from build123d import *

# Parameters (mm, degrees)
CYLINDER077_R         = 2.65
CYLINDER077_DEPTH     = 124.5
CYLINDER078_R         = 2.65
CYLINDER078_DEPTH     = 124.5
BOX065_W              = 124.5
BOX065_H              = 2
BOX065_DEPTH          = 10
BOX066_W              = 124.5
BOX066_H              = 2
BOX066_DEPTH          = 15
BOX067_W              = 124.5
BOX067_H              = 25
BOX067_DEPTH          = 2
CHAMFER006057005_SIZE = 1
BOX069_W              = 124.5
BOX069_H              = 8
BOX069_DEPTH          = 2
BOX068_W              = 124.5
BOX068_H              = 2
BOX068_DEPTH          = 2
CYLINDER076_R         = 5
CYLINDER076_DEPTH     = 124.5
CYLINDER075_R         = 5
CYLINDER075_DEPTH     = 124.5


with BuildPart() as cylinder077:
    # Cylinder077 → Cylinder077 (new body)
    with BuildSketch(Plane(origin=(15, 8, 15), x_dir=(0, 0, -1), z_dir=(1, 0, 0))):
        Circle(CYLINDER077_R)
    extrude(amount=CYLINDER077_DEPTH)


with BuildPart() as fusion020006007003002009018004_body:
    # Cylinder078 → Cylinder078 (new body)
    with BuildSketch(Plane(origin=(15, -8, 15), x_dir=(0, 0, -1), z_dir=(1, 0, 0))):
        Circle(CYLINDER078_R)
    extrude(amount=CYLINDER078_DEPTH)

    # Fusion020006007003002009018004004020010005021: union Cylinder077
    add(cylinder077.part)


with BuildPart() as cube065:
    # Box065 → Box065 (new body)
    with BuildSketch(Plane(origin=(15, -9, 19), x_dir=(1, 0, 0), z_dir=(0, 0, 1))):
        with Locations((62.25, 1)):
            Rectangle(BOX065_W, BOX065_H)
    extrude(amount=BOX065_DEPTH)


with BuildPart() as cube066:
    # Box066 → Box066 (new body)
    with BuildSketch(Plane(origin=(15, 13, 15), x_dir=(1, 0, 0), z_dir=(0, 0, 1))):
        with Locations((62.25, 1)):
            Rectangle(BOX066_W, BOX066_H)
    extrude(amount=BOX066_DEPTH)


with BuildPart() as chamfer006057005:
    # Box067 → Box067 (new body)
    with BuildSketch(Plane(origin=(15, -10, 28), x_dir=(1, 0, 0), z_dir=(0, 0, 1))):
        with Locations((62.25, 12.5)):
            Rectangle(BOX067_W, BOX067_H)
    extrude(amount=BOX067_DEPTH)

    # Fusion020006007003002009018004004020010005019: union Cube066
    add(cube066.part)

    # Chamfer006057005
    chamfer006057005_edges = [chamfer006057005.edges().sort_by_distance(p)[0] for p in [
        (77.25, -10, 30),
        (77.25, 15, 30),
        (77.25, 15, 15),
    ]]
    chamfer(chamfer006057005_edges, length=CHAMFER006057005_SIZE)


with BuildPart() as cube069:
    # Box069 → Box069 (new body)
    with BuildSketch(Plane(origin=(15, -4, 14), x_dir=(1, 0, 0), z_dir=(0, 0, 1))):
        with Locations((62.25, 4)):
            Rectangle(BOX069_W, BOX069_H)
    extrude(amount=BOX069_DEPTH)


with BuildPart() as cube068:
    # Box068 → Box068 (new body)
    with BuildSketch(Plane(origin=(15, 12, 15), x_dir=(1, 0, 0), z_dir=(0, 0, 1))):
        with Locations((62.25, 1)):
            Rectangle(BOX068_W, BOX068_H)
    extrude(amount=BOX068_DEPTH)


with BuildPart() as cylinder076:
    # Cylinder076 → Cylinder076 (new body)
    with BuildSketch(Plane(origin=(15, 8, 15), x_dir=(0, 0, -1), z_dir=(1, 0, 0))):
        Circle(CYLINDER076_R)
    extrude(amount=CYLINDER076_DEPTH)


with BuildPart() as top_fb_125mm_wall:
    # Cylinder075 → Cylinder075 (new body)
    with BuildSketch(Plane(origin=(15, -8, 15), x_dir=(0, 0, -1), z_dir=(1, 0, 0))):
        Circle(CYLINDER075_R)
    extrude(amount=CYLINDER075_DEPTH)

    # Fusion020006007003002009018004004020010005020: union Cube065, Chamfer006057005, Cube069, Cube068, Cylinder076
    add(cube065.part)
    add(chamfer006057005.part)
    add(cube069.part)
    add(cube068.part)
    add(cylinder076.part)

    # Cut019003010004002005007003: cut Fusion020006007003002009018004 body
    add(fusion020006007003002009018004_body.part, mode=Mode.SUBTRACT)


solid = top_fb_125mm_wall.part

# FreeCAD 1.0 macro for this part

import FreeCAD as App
import Part
import Sketcher
from FreeCAD import Vector


def edges_at(feature, points):
    """Names of the edges that pass closest to the given points."""
    edges = feature.Shape.Edges
    near = lambda p: min(range(len(edges)), key=lambda i: edges[i].distToShape(Part.Vertex(*p))[0])
    return sorted({f"Edge{near(p) + 1}" for p in points})

doc = App.newDocument("Part")
body = doc.addObject("PartDesign::Body", "Body")

sketch1 = body.newObject("Sketcher::SketchObject", "Sketch")
sketch1.AttachmentSupport = (doc.getObject("YZ_Plane"), [""])
sketch1.MapMode = "FlatFace"
sketch1.AttachmentOffset = App.Placement(Vector(0, 0, 15), App.Rotation())
sketch1.addGeometry(Part.Circle(Vector(8, 15, 0), Vector(0, 0, 1), 2.65), False)
sketch1.addConstraint([
    Sketcher.Constraint("Diameter", 0, 5.3),
    Sketcher.Constraint("DistanceX", -1, 1, 0, 3, 8.0),
    Sketcher.Constraint("DistanceY", -1, 1, 0, 3, 15.0),
])
pad1 = body.newObject("PartDesign::Pad", "Pad")
pad1.Profile = sketch1
pad1.Length = 124.5
body2 = doc.addObject("PartDesign::Body", "Body001")
body2.AllowCompound = True

sketch2 = body2.newObject("Sketcher::SketchObject", "Sketch001")
sketch2.AttachmentSupport = (doc.getObject("YZ_Plane001"), [""])
sketch2.MapMode = "FlatFace"
sketch2.AttachmentOffset = App.Placement(Vector(0, 0, 15), App.Rotation())
sketch2.addGeometry(Part.Circle(Vector(-8, 15, 0), Vector(0, 0, 1), 2.65), False)
sketch2.addConstraint([
    Sketcher.Constraint("Diameter", 0, 5.3),
    Sketcher.Constraint("DistanceX", 0, 3, -1, 1, 8.0),
    Sketcher.Constraint("DistanceY", -1, 1, 0, 3, 15.0),
])
pad2 = body2.newObject("PartDesign::Pad", "Pad001")
pad2.Profile = sketch2
pad2.Length = 124.5
doc.recompute()

boolean = body2.newObject("PartDesign::Boolean", "Boolean")
boolean.Type = "Fuse"
boolean.addObjects([body])
body3 = doc.addObject("PartDesign::Body", "Body002")

sketch3 = body3.newObject("Sketcher::SketchObject", "Sketch002")
sketch3.AttachmentSupport = (doc.getObject("XY_Plane002"), [""])
sketch3.MapMode = "FlatFace"
sketch3.AttachmentOffset = App.Placement(Vector(0, 0, 19), App.Rotation())
sketch3.addGeometry([
    Part.LineSegment(Vector(15, -7, 0), Vector(15, -9, 0)),
    Part.LineSegment(Vector(15, -9, 0), Vector(139.5, -9, 0)),
    Part.LineSegment(Vector(139.5, -9, 0), Vector(139.5, -7, 0)),
    Part.LineSegment(Vector(139.5, -7, 0), Vector(15, -7, 0)),
], False)
sketch3.addConstraint([
    Sketcher.Constraint("Coincident", 0, 2, 1, 1),
    Sketcher.Constraint("Coincident", 1, 2, 2, 1),
    Sketcher.Constraint("Coincident", 2, 2, 3, 1),
    Sketcher.Constraint("Coincident", 3, 2, 0, 1),
    Sketcher.Constraint("Vertical", 0),
    Sketcher.Constraint("Horizontal", 1),
    Sketcher.Constraint("Vertical", 2),
    Sketcher.Constraint("Horizontal", 3),
    Sketcher.Constraint("DistanceY", 0, 2, 0, 1, 2.0),
    Sketcher.Constraint("DistanceX", 1, 1, 1, 2, 124.5),
    Sketcher.Constraint("DistanceX", -1, 1, 0, 2, 15.0),
    Sketcher.Constraint("DistanceY", 0, 2, -1, 1, 9.0),
])
pad3 = body3.newObject("PartDesign::Pad", "Pad002")
pad3.Profile = sketch3
pad3.Length = 10
body4 = doc.addObject("PartDesign::Body", "Body003")

sketch4 = body4.newObject("Sketcher::SketchObject", "Sketch003")
sketch4.AttachmentSupport = (doc.getObject("XY_Plane003"), [""])
sketch4.MapMode = "FlatFace"
sketch4.AttachmentOffset = App.Placement(Vector(0, 0, 15), App.Rotation())
sketch4.addGeometry([
    Part.LineSegment(Vector(15, 15, 0), Vector(15, 13, 0)),
    Part.LineSegment(Vector(15, 13, 0), Vector(139.5, 13, 0)),
    Part.LineSegment(Vector(139.5, 13, 0), Vector(139.5, 15, 0)),
    Part.LineSegment(Vector(139.5, 15, 0), Vector(15, 15, 0)),
], False)
sketch4.addConstraint([
    Sketcher.Constraint("Coincident", 0, 2, 1, 1),
    Sketcher.Constraint("Coincident", 1, 2, 2, 1),
    Sketcher.Constraint("Coincident", 2, 2, 3, 1),
    Sketcher.Constraint("Coincident", 3, 2, 0, 1),
    Sketcher.Constraint("Vertical", 0),
    Sketcher.Constraint("Horizontal", 1),
    Sketcher.Constraint("Vertical", 2),
    Sketcher.Constraint("Horizontal", 3),
    Sketcher.Constraint("DistanceY", 0, 2, 0, 1, 2.0),
    Sketcher.Constraint("DistanceX", 1, 1, 1, 2, 124.5),
    Sketcher.Constraint("DistanceX", -1, 1, 0, 2, 15.0),
    Sketcher.Constraint("DistanceY", -1, 1, 0, 2, 13.0),
])
pad4 = body4.newObject("PartDesign::Pad", "Pad003")
pad4.Profile = sketch4
pad4.Length = 15
body5 = doc.addObject("PartDesign::Body", "Body004")

sketch5 = body5.newObject("Sketcher::SketchObject", "Sketch004")
sketch5.AttachmentSupport = (doc.getObject("XY_Plane004"), [""])
sketch5.MapMode = "FlatFace"
sketch5.AttachmentOffset = App.Placement(Vector(0, 0, 28), App.Rotation())
sketch5.addGeometry([
    Part.LineSegment(Vector(15, 15, 0), Vector(15, -10, 0)),
    Part.LineSegment(Vector(15, -10, 0), Vector(139.5, -10, 0)),
    Part.LineSegment(Vector(139.5, -10, 0), Vector(139.5, 15, 0)),
    Part.LineSegment(Vector(139.5, 15, 0), Vector(15, 15, 0)),
], False)
sketch5.addConstraint([
    Sketcher.Constraint("Coincident", 0, 2, 1, 1),
    Sketcher.Constraint("Coincident", 1, 2, 2, 1),
    Sketcher.Constraint("Coincident", 2, 2, 3, 1),
    Sketcher.Constraint("Coincident", 3, 2, 0, 1),
    Sketcher.Constraint("Vertical", 0),
    Sketcher.Constraint("Horizontal", 1),
    Sketcher.Constraint("Vertical", 2),
    Sketcher.Constraint("Horizontal", 3),
    Sketcher.Constraint("DistanceY", 0, 2, 0, 1, 25.0),
    Sketcher.Constraint("DistanceX", 1, 1, 1, 2, 124.5),
    Sketcher.Constraint("DistanceX", -1, 1, 0, 2, 15.0),
    Sketcher.Constraint("DistanceY", 0, 2, -1, 1, 10.0),
])
pad5 = body5.newObject("PartDesign::Pad", "Pad004")
pad5.Profile = sketch5
pad5.Length = 2
doc.recompute()

boolean2 = body5.newObject("PartDesign::Boolean", "Boolean001")
boolean2.Type = "Fuse"
boolean2.addObjects([body4])
doc.recompute()

chamfer = body5.newObject("PartDesign::Chamfer", "Chamfer")
chamfer.Base = (boolean2, edges_at(boolean2, [(77.25, -10, 30), (77.25, 15, 30), (77.25, 15, 15)]))
chamfer.Size = 1
body6 = doc.addObject("PartDesign::Body", "Body005")

sketch6 = body6.newObject("Sketcher::SketchObject", "Sketch005")
sketch6.AttachmentSupport = (doc.getObject("XY_Plane005"), [""])
sketch6.MapMode = "FlatFace"
sketch6.AttachmentOffset = App.Placement(Vector(0, 0, 14), App.Rotation())
sketch6.addGeometry([
    Part.LineSegment(Vector(15, 4, 0), Vector(15, -4, 0)),
    Part.LineSegment(Vector(15, -4, 0), Vector(139.5, -4, 0)),
    Part.LineSegment(Vector(139.5, -4, 0), Vector(139.5, 4, 0)),
    Part.LineSegment(Vector(139.5, 4, 0), Vector(15, 4, 0)),
], False)
sketch6.addConstraint([
    Sketcher.Constraint("Coincident", 0, 2, 1, 1),
    Sketcher.Constraint("Coincident", 1, 2, 2, 1),
    Sketcher.Constraint("Coincident", 2, 2, 3, 1),
    Sketcher.Constraint("Coincident", 3, 2, 0, 1),
    Sketcher.Constraint("Vertical", 0),
    Sketcher.Constraint("Horizontal", 1),
    Sketcher.Constraint("Vertical", 2),
    Sketcher.Constraint("Horizontal", 3),
    Sketcher.Constraint("DistanceY", 0, 2, 0, 1, 8.0),
    Sketcher.Constraint("DistanceX", 1, 1, 1, 2, 124.5),
    Sketcher.Constraint("DistanceX", -1, 1, 0, 2, 15.0),
    Sketcher.Constraint("DistanceY", 0, 2, -1, 1, 4.0),
])
pad6 = body6.newObject("PartDesign::Pad", "Pad005")
pad6.Profile = sketch6
pad6.Length = 2
body7 = doc.addObject("PartDesign::Body", "Body006")

sketch7 = body7.newObject("Sketcher::SketchObject", "Sketch006")
sketch7.AttachmentSupport = (doc.getObject("XY_Plane006"), [""])
sketch7.MapMode = "FlatFace"
sketch7.AttachmentOffset = App.Placement(Vector(0, 0, 15), App.Rotation())
sketch7.addGeometry([
    Part.LineSegment(Vector(15, 14, 0), Vector(15, 12, 0)),
    Part.LineSegment(Vector(15, 12, 0), Vector(139.5, 12, 0)),
    Part.LineSegment(Vector(139.5, 12, 0), Vector(139.5, 14, 0)),
    Part.LineSegment(Vector(139.5, 14, 0), Vector(15, 14, 0)),
], False)
sketch7.addConstraint([
    Sketcher.Constraint("Coincident", 0, 2, 1, 1),
    Sketcher.Constraint("Coincident", 1, 2, 2, 1),
    Sketcher.Constraint("Coincident", 2, 2, 3, 1),
    Sketcher.Constraint("Coincident", 3, 2, 0, 1),
    Sketcher.Constraint("Vertical", 0),
    Sketcher.Constraint("Horizontal", 1),
    Sketcher.Constraint("Vertical", 2),
    Sketcher.Constraint("Horizontal", 3),
    Sketcher.Constraint("DistanceY", 0, 2, 0, 1, 2.0),
    Sketcher.Constraint("DistanceX", 1, 1, 1, 2, 124.5),
    Sketcher.Constraint("DistanceX", -1, 1, 0, 2, 15.0),
    Sketcher.Constraint("DistanceY", -1, 1, 0, 2, 12.0),
])
pad7 = body7.newObject("PartDesign::Pad", "Pad006")
pad7.Profile = sketch7
pad7.Length = 2
body8 = doc.addObject("PartDesign::Body", "Body007")

sketch8 = body8.newObject("Sketcher::SketchObject", "Sketch007")
sketch8.AttachmentSupport = (doc.getObject("YZ_Plane007"), [""])
sketch8.MapMode = "FlatFace"
sketch8.AttachmentOffset = App.Placement(Vector(0, 0, 15), App.Rotation())
sketch8.addGeometry(Part.Circle(Vector(8, 15, 0), Vector(0, 0, 1), 5), False)
sketch8.addConstraint([
    Sketcher.Constraint("Diameter", 0, 10.0),
    Sketcher.Constraint("DistanceX", -1, 1, 0, 3, 8.0),
    Sketcher.Constraint("DistanceY", -1, 1, 0, 3, 15.0),
])
pad8 = body8.newObject("PartDesign::Pad", "Pad007")
pad8.Profile = sketch8
pad8.Length = 124.5
body9 = doc.addObject("PartDesign::Body", "Body008")

sketch9 = body9.newObject("Sketcher::SketchObject", "Sketch008")
sketch9.AttachmentSupport = (doc.getObject("YZ_Plane008"), [""])
sketch9.MapMode = "FlatFace"
sketch9.AttachmentOffset = App.Placement(Vector(0, 0, 15), App.Rotation())
sketch9.addGeometry(Part.Circle(Vector(-8, 15, 0), Vector(0, 0, 1), 5), False)
sketch9.addConstraint([
    Sketcher.Constraint("Diameter", 0, 10.0),
    Sketcher.Constraint("DistanceX", 0, 3, -1, 1, 8.0),
    Sketcher.Constraint("DistanceY", -1, 1, 0, 3, 15.0),
])
pad9 = body9.newObject("PartDesign::Pad", "Pad008")
pad9.Profile = sketch9
pad9.Length = 124.5
doc.recompute()

boolean3 = body9.newObject("PartDesign::Boolean", "Boolean002")
boolean3.Type = "Fuse"
boolean3.addObjects([body3])
doc.recompute()

boolean4 = body9.newObject("PartDesign::Boolean", "Boolean003")
boolean4.Type = "Fuse"
boolean4.addObjects([body5])
doc.recompute()

boolean5 = body9.newObject("PartDesign::Boolean", "Boolean004")
boolean5.Type = "Fuse"
boolean5.addObjects([body6])
doc.recompute()

boolean6 = body9.newObject("PartDesign::Boolean", "Boolean005")
boolean6.Type = "Fuse"
boolean6.addObjects([body7])
doc.recompute()

boolean7 = body9.newObject("PartDesign::Boolean", "Boolean006")
boolean7.Type = "Fuse"
boolean7.addObjects([body8])
doc.recompute()

boolean8 = body9.newObject("PartDesign::Boolean", "Boolean007")
boolean8.Type = "Cut"
boolean8.addObjects([body2])

doc.recompute()
